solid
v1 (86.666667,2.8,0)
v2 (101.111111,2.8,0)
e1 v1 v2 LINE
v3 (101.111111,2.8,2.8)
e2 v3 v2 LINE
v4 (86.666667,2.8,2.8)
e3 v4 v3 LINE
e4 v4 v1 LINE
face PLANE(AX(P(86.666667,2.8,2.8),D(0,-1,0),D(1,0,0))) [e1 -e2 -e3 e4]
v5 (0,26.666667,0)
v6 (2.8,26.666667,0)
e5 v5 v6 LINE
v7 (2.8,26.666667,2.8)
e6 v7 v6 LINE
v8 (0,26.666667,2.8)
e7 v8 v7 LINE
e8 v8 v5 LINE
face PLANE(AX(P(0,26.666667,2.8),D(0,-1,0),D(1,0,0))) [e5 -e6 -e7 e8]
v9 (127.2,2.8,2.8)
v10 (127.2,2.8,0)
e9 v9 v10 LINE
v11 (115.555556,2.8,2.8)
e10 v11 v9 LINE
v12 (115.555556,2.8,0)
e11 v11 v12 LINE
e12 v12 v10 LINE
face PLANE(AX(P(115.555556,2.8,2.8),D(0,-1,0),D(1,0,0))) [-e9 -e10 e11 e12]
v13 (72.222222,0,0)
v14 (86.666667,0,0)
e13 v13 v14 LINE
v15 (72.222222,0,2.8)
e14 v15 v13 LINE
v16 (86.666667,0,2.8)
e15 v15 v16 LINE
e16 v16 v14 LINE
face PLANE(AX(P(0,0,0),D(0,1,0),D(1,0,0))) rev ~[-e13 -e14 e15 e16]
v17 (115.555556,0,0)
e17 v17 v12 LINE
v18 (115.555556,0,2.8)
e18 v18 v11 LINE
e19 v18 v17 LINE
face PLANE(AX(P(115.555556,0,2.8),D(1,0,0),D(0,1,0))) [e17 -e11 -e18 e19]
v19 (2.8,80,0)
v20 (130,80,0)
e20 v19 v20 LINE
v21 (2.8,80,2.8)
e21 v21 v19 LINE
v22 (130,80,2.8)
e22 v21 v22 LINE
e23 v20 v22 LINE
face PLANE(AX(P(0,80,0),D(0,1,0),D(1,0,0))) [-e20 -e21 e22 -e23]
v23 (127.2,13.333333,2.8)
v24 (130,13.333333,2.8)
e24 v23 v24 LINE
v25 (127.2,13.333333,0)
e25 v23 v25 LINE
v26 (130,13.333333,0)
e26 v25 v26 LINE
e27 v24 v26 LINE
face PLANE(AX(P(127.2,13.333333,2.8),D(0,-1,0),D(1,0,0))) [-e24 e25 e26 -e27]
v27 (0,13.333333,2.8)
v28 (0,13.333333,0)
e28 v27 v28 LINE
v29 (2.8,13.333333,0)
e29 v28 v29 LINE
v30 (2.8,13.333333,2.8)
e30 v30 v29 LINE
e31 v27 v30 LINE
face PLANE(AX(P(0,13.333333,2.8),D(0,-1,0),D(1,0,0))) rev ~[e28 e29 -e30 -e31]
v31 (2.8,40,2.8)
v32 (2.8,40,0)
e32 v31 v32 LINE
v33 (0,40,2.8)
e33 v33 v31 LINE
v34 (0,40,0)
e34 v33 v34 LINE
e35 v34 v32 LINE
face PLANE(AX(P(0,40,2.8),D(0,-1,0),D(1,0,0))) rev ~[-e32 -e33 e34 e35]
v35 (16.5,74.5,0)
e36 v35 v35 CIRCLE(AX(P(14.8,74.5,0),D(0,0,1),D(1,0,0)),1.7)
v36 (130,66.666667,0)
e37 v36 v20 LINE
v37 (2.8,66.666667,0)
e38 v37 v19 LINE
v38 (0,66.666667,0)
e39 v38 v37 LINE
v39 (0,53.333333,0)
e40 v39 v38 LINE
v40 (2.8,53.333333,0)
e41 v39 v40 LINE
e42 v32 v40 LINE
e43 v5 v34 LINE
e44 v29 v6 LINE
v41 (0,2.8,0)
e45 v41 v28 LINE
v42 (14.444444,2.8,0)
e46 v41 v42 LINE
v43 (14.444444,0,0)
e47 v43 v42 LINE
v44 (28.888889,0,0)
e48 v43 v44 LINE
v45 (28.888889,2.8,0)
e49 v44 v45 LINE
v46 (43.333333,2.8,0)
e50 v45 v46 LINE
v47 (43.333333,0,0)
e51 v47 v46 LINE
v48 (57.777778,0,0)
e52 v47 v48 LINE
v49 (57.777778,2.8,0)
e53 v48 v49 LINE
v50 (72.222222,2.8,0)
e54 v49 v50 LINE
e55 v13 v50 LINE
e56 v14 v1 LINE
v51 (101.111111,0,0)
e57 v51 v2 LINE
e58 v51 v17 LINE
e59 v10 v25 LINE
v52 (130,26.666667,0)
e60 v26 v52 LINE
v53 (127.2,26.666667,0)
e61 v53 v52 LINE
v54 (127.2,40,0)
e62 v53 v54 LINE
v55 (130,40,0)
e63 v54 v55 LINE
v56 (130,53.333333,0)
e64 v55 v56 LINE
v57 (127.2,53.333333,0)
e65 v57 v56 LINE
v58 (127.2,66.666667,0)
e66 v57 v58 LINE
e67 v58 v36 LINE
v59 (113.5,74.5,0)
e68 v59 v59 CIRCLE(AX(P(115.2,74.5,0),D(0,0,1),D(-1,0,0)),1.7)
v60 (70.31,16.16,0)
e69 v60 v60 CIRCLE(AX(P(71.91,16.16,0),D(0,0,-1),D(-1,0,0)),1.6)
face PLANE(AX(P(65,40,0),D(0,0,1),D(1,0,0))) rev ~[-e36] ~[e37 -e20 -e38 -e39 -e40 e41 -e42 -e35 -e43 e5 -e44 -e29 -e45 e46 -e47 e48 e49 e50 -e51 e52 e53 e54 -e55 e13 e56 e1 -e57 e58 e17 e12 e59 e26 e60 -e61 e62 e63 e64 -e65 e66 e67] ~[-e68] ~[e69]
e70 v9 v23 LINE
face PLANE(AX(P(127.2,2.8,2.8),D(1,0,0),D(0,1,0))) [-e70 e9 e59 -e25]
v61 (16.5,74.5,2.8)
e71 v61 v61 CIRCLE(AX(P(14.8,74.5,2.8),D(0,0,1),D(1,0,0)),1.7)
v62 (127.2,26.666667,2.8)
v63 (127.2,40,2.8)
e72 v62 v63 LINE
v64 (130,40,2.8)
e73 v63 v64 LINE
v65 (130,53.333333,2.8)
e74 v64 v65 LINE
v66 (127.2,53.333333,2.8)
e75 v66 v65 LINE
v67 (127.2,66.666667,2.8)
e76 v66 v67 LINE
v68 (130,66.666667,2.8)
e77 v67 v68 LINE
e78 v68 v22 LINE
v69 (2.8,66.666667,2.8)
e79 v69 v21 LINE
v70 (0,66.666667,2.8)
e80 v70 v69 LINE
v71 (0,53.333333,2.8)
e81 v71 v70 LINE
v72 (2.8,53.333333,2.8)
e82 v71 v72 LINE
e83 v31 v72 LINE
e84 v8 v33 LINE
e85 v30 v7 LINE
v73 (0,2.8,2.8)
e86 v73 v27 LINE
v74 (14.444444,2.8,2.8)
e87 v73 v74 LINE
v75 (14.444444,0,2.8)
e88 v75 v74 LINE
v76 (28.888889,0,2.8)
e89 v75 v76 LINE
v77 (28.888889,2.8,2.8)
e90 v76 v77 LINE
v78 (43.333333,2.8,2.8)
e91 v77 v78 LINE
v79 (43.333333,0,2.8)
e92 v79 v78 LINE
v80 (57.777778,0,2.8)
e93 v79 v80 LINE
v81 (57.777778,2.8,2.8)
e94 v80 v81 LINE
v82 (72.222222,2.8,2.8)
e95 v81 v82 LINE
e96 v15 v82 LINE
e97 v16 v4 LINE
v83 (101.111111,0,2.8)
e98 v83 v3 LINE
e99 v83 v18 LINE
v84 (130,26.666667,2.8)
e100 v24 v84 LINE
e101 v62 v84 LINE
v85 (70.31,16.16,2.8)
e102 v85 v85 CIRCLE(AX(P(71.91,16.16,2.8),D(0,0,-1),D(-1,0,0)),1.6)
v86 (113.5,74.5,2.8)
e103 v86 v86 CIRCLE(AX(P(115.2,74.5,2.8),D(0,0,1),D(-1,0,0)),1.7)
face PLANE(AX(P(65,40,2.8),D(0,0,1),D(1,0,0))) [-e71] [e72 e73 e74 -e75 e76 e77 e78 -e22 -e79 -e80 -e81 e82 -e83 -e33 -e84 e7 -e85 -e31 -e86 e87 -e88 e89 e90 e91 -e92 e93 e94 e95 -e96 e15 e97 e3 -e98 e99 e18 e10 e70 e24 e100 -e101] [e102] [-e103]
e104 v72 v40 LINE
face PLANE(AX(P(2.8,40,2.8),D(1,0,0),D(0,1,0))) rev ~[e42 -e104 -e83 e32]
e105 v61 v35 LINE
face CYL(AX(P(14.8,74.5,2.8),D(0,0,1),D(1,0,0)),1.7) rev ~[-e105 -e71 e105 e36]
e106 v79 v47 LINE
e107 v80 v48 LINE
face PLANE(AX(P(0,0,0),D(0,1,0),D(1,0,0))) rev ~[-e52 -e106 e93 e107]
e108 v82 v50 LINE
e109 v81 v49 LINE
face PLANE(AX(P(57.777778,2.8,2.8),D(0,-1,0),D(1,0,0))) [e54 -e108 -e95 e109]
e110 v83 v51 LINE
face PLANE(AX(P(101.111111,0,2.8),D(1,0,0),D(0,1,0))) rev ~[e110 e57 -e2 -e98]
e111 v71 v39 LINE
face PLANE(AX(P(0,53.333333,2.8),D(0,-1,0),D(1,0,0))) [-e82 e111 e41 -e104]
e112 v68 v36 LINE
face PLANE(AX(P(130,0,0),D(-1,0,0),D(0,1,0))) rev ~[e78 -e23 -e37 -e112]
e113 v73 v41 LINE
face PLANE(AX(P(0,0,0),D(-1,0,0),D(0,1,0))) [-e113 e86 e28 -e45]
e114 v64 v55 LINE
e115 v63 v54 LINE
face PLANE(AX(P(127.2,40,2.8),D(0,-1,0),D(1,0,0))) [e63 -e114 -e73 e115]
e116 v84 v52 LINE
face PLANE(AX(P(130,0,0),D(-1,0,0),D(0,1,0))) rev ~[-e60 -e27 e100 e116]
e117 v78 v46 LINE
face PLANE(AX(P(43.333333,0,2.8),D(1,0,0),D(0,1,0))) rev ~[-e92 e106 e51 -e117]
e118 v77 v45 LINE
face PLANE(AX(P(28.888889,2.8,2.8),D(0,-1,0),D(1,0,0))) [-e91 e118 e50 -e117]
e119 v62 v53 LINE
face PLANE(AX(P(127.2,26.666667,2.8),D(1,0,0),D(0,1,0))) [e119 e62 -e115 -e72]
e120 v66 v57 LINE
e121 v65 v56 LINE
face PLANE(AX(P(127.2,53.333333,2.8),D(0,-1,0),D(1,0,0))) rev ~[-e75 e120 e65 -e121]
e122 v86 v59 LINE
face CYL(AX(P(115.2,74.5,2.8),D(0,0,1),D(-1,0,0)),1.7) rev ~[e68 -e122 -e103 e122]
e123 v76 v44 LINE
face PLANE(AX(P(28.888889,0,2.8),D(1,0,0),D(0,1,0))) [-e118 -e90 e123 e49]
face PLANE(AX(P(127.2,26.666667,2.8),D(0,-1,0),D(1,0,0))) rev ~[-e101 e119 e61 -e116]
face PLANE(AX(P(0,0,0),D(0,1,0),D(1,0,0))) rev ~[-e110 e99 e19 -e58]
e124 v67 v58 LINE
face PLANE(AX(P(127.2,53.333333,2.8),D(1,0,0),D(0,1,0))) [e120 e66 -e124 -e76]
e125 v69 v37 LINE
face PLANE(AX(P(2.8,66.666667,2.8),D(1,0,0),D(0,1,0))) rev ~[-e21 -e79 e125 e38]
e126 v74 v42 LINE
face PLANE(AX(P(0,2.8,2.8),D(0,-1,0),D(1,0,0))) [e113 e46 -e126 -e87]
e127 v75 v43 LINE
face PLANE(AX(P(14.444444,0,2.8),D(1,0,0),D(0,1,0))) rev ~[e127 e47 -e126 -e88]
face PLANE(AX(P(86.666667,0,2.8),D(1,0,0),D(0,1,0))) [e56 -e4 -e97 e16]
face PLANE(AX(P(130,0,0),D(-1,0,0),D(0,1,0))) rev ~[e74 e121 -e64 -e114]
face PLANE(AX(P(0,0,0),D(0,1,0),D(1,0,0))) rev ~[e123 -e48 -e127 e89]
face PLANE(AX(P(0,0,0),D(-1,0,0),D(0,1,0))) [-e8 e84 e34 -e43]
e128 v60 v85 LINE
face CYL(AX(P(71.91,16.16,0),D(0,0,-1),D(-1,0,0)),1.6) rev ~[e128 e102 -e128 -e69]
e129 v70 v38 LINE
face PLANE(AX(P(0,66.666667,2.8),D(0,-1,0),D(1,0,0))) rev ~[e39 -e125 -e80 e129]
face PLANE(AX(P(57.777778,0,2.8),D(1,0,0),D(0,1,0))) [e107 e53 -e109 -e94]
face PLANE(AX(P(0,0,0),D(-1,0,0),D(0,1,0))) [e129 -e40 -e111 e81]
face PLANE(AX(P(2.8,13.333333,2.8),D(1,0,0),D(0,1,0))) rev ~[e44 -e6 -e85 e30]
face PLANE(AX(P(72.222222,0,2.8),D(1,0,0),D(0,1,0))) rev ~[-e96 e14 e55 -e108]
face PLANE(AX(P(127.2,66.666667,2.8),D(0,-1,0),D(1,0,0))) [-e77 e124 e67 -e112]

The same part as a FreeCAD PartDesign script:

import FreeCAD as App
import Part
import Sketcher

V = App.Vector


def add_polygon(sketch, points):
    """Adds a closed chain of lines whose ends are joined by coincident constraints."""
    first, n = sketch.GeometryCount, len(points)
    for a, b in zip(points, points[1:] + points[:1]):
        sketch.addGeometry(Part.LineSegment(App.Vector(*a, 0), App.Vector(*b, 0)), False)
    for i in range(n):
        sketch.addConstraint(Sketcher.Constraint("Coincident", first + i, 2, first + (i + 1) % n, 1))

doc = App.newDocument("Part")
body = doc.addObject("PartDesign::Body", "Body")

sketch1 = body.newObject("Sketcher::SketchObject", "Sketch")
sketch1.AttachmentSupport = (doc.getObject("XY_Plane"), [""])
sketch1.MapMode = "FlatFace"
add_polygon(sketch1, [(0, 80), (0, 0), (130, 0), (130, 80)])
sketch1.addConstraint([
    Sketcher.Constraint("Vertical", 0),
    Sketcher.Constraint("Horizontal", 1),
    Sketcher.Constraint("Vertical", 2),
    Sketcher.Constraint("Horizontal", 3),
    Sketcher.Constraint("Coincident", 0, 2, -1, 1),
    Sketcher.Constraint("DistanceX", 1, 1, 1, 2, 130.0),
    Sketcher.Constraint("DistanceY", 0, 2, 0, 1, 80.0),
])
pad1 = body.newObject("PartDesign::Pad", "Pad")
pad1.Profile = sketch1
pad1.Length = 2.8

sketch2 = body.newObject("Sketcher::SketchObject", "Sketch001")
sketch2.AttachmentSupport = (doc.getObject("XY_Plane"), [""])
sketch2.MapMode = "FlatFace"
sketch2.AttachmentOffset = App.Placement(V(0, 0, 2.8), App.Rotation())
add_polygon(sketch2, [(0, 2.8), (0, 0), (14.4, 0), (14.4, 2.8)])
add_polygon(sketch2, [(28.9, 2.8), (28.9, 0), (43.3, 0), (43.3, 2.8)])
add_polygon(sketch2, [(57.8, 2.8), (57.8, 0), (72.2, 0), (72.2, 2.8)])
add_polygon(sketch2, [(86.7, 2.8), (86.7, 0), (101.1, 0), (101.1, 2.8)])
add_polygon(sketch2, [(115.6, 2.8), (115.6, 0), (130, 0), (130, 13.3), (127.2, 13.3), (127.2, 2.8)])
add_polygon(sketch2, [(0, 26.7), (0, 13.3), (2.8, 13.3), (2.8, 26.7)])
add_polygon(sketch2, [(0, 53.3), (0, 40), (2.8, 40), (2.8, 53.3)])
add_polygon(sketch2, [(0, 80), (0, 66.7), (2.8, 66.7), (2.8, 80)])
add_polygon(sketch2, [(127.2, 40), (127.2, 26.7), (130, 26.7), (130, 40)])
add_polygon(sketch2, [(127.2, 66.7), (127.2, 53.3), (130, 53.3), (130, 66.7)])
sketch2.addConstraint([
    Sketcher.Constraint("Vertical", 0),
    Sketcher.Constraint("Horizontal", 1),
    Sketcher.Constraint("Vertical", 2),
    Sketcher.Constraint("Horizontal", 3),
    Sketcher.Constraint("Vertical", 4),
    Sketcher.Constraint("Horizontal", 5),
    Sketcher.Constraint("Vertical", 6),
    Sketcher.Constraint("Horizontal", 7),
    Sketcher.Constraint("Vertical", 8),
    Sketcher.Constraint("Horizontal", 9),
    Sketcher.Constraint("Vertical", 10),
    Sketcher.Constraint("Horizontal", 11),
    Sketcher.Constraint("Vertical", 12),
    Sketcher.Constraint("Horizontal", 13),
    Sketcher.Constraint("Vertical", 14),
    Sketcher.Constraint("Horizontal", 15),
    Sketcher.Constraint("Vertical", 16),
    Sketcher.Constraint("Horizontal", 17),
    Sketcher.Constraint("Vertical", 18),
    Sketcher.Constraint("Horizontal", 19),
    Sketcher.Constraint("Vertical", 20),
    Sketcher.Constraint("Horizontal", 21),
    Sketcher.Constraint("Vertical", 22),
    Sketcher.Constraint("Horizontal", 23),
    Sketcher.Constraint("Vertical", 24),
    Sketcher.Constraint("Horizontal", 25),
    Sketcher.Constraint("Vertical", 26),
    Sketcher.Constraint("Horizontal", 27),
    Sketcher.Constraint("Vertical", 28),
    Sketcher.Constraint("Horizontal", 29),
    Sketcher.Constraint("Vertical", 30),
    Sketcher.Constraint("Horizontal", 31),
    Sketcher.Constraint("Vertical", 32),
    Sketcher.Constraint("Horizontal", 33),
    Sketcher.Constraint("Vertical", 34),
    Sketcher.Constraint("Horizontal", 35),
    Sketcher.Constraint("Vertical", 36),
    Sketcher.Constraint("Horizontal", 37),
    Sketcher.Constraint("Vertical", 38),
    Sketcher.Constraint("Horizontal", 39),
    Sketcher.Constraint("Vertical", 40),
    Sketcher.Constraint("Horizontal", 41),
    Sketcher.Constraint("Coincident", 0, 2, -1, 1),
    Sketcher.Constraint("PointOnObject", 4, 2, -1),
    Sketcher.Constraint("PointOnObject", 8, 2, -1),
    Sketcher.Constraint("PointOnObject", 12, 2, -1),
    Sketcher.Constraint("PointOnObject", 16, 2, -1),
    Sketcher.Constraint("PointOnObject", 22, 2, -2),
    Sketcher.Constraint("PointOnObject", 26, 2, -2),
    Sketcher.Constraint("PointOnObject", 30, 2, -2),
    Sketcher.Constraint("Horizontal", 3, 2, 6, 2),
    Sketcher.Constraint("Horizontal", 7, 2, 10, 2),
    Sketcher.Constraint("Horizontal", 11, 2, 14, 2),
    Sketcher.Constraint("Horizontal", 15, 2, 20, 2),
    Sketcher.Constraint("Horizontal", 19, 2, 22, 2),
    Sketcher.Constraint("Horizontal", 25, 2, 34, 2),
    Sketcher.Constraint("Horizontal", 27, 2, 36, 2),
    Sketcher.Constraint("Horizontal", 29, 2, 38, 2),
    Sketcher.Constraint("Horizontal", 31, 2, 40, 2),
    Sketcher.Constraint("Vertical", 24, 2, 27, 2),
    Sketcher.Constraint("Vertical", 28, 2, 31, 2),
    Sketcher.Constraint("Vertical", 20, 2, 34, 2),
    Sketcher.Constraint("Vertical", 18, 2, 35, 2),
    Sketcher.Constraint("Vertical", 37, 2, 38, 2),
    Sketcher.Constraint("Vertical", 36, 2, 39, 2),
    Sketcher.Constraint("Equal", 3, 5),
    Sketcher.Constraint("Equal", 7, 9),
    Sketcher.Constraint("Equal", 11, 13),
    Sketcher.Constraint("Equal", 15, 17),
    Sketcher.Constraint("Equal", 19, 23),
    Sketcher.Constraint("Equal", 41, 0),
    Sketcher.Constraint("Equal", 18, 22),
    Sketcher.Constraint("Equal", 24, 26),
    Sketcher.Constraint("Equal", 28, 30),
    Sketcher.Constraint("Equal", 32, 34),
    Sketcher.Constraint("Equal", 36, 38),
    Sketcher.Constraint("DistanceX", 19, 2, 19, 1, 2.8),
    Sketcher.Constraint("DistanceX", -1, 1, 17, 2, 130.0),
    Sketcher.Constraint("DistanceY", -1, 1, 26, 2, 40.0),
    Sketcher.Constraint("DistanceX", 1, 1, 1, 2, 14.444444),
    Sketcher.Constraint("DistanceX", -1, 1, 4, 2, 28.888889),
    Sketcher.Constraint("DistanceX", -1, 1, 13, 2, 101.111111),
    Sketcher.Constraint("DistanceX", 4, 2, 8, 2, 28.888889),
])
pocket1 = body.newObject("PartDesign::Pocket", "Pocket")
pocket1.Profile = sketch2
pocket1.Type = "ThroughAll"

sketch3 = body.newObject("Sketcher::SketchObject", "Sketch002")
sketch3.AttachmentSupport = (doc.getObject("XY_Plane"), [""])
sketch3.MapMode = "FlatFace"
sketch3.AttachmentOffset = App.Placement(V(0, 0, 2.8), App.Rotation())
sketch3.addGeometry(Part.Circle(V(14.8, 74.5, 0), V(0, 0, 1), 1.7), False)
sketch3.addConstraint([
    Sketcher.Constraint("Diameter", 0, 3.4),
    Sketcher.Constraint("DistanceX", -1, 1, 0, 3, 14.8),
    Sketcher.Constraint("DistanceY", -1, 1, 0, 3, 74.5),
])
pocket2 = body.newObject("PartDesign::Pocket", "Pocket001")
pocket2.Profile = sketch3
pocket2.Type = "UpToFirst"

sketch4 = body.newObject("Sketcher::SketchObject", "Sketch003")
sketch4.AttachmentSupport = (doc.getObject("XY_Plane"), [""])
sketch4.MapMode = "FlatFace"
sketch4.AttachmentOffset = App.Placement(V(0, 0, 2.8), App.Rotation())
sketch4.addGeometry(Part.Circle(V(115.2, 74.5, 0), V(0, 0, 1), 1.7), False)
sketch4.addConstraint([
    Sketcher.Constraint("Diameter", 0, 3.4),
    Sketcher.Constraint("DistanceX", -1, 1, 0, 3, 115.2),
    Sketcher.Constraint("DistanceY", -1, 1, 0, 3, 74.5),
])
pocket3 = body.newObject("PartDesign::Pocket", "Pocket002")
pocket3.Profile = sketch4
pocket3.Type = "UpToFirst"

sketch5 = body.newObject("Sketcher::SketchObject", "Sketch004")
sketch5.AttachmentSupport = (doc.getObject("XY_Plane"), [""])
sketch5.MapMode = "FlatFace"
sketch5.addGeometry(Part.Circle(V(71.9, 16.2, 0), V(0, 0, 1), 1.6), False)
sketch5.addConstraint([
    Sketcher.Constraint("Diameter", 0, 3.2),
    Sketcher.Constraint("DistanceX", -1, 1, 0, 3, 71.91),
    Sketcher.Constraint("DistanceY", -1, 1, 0, 3, 16.16),
])
pocket4 = body.newObject("PartDesign::Pocket", "Pocket003")
pocket4.Profile = sketch5
pocket4.Type = "UpToFirst"
pocket4.Reversed = True

doc.recompute()
